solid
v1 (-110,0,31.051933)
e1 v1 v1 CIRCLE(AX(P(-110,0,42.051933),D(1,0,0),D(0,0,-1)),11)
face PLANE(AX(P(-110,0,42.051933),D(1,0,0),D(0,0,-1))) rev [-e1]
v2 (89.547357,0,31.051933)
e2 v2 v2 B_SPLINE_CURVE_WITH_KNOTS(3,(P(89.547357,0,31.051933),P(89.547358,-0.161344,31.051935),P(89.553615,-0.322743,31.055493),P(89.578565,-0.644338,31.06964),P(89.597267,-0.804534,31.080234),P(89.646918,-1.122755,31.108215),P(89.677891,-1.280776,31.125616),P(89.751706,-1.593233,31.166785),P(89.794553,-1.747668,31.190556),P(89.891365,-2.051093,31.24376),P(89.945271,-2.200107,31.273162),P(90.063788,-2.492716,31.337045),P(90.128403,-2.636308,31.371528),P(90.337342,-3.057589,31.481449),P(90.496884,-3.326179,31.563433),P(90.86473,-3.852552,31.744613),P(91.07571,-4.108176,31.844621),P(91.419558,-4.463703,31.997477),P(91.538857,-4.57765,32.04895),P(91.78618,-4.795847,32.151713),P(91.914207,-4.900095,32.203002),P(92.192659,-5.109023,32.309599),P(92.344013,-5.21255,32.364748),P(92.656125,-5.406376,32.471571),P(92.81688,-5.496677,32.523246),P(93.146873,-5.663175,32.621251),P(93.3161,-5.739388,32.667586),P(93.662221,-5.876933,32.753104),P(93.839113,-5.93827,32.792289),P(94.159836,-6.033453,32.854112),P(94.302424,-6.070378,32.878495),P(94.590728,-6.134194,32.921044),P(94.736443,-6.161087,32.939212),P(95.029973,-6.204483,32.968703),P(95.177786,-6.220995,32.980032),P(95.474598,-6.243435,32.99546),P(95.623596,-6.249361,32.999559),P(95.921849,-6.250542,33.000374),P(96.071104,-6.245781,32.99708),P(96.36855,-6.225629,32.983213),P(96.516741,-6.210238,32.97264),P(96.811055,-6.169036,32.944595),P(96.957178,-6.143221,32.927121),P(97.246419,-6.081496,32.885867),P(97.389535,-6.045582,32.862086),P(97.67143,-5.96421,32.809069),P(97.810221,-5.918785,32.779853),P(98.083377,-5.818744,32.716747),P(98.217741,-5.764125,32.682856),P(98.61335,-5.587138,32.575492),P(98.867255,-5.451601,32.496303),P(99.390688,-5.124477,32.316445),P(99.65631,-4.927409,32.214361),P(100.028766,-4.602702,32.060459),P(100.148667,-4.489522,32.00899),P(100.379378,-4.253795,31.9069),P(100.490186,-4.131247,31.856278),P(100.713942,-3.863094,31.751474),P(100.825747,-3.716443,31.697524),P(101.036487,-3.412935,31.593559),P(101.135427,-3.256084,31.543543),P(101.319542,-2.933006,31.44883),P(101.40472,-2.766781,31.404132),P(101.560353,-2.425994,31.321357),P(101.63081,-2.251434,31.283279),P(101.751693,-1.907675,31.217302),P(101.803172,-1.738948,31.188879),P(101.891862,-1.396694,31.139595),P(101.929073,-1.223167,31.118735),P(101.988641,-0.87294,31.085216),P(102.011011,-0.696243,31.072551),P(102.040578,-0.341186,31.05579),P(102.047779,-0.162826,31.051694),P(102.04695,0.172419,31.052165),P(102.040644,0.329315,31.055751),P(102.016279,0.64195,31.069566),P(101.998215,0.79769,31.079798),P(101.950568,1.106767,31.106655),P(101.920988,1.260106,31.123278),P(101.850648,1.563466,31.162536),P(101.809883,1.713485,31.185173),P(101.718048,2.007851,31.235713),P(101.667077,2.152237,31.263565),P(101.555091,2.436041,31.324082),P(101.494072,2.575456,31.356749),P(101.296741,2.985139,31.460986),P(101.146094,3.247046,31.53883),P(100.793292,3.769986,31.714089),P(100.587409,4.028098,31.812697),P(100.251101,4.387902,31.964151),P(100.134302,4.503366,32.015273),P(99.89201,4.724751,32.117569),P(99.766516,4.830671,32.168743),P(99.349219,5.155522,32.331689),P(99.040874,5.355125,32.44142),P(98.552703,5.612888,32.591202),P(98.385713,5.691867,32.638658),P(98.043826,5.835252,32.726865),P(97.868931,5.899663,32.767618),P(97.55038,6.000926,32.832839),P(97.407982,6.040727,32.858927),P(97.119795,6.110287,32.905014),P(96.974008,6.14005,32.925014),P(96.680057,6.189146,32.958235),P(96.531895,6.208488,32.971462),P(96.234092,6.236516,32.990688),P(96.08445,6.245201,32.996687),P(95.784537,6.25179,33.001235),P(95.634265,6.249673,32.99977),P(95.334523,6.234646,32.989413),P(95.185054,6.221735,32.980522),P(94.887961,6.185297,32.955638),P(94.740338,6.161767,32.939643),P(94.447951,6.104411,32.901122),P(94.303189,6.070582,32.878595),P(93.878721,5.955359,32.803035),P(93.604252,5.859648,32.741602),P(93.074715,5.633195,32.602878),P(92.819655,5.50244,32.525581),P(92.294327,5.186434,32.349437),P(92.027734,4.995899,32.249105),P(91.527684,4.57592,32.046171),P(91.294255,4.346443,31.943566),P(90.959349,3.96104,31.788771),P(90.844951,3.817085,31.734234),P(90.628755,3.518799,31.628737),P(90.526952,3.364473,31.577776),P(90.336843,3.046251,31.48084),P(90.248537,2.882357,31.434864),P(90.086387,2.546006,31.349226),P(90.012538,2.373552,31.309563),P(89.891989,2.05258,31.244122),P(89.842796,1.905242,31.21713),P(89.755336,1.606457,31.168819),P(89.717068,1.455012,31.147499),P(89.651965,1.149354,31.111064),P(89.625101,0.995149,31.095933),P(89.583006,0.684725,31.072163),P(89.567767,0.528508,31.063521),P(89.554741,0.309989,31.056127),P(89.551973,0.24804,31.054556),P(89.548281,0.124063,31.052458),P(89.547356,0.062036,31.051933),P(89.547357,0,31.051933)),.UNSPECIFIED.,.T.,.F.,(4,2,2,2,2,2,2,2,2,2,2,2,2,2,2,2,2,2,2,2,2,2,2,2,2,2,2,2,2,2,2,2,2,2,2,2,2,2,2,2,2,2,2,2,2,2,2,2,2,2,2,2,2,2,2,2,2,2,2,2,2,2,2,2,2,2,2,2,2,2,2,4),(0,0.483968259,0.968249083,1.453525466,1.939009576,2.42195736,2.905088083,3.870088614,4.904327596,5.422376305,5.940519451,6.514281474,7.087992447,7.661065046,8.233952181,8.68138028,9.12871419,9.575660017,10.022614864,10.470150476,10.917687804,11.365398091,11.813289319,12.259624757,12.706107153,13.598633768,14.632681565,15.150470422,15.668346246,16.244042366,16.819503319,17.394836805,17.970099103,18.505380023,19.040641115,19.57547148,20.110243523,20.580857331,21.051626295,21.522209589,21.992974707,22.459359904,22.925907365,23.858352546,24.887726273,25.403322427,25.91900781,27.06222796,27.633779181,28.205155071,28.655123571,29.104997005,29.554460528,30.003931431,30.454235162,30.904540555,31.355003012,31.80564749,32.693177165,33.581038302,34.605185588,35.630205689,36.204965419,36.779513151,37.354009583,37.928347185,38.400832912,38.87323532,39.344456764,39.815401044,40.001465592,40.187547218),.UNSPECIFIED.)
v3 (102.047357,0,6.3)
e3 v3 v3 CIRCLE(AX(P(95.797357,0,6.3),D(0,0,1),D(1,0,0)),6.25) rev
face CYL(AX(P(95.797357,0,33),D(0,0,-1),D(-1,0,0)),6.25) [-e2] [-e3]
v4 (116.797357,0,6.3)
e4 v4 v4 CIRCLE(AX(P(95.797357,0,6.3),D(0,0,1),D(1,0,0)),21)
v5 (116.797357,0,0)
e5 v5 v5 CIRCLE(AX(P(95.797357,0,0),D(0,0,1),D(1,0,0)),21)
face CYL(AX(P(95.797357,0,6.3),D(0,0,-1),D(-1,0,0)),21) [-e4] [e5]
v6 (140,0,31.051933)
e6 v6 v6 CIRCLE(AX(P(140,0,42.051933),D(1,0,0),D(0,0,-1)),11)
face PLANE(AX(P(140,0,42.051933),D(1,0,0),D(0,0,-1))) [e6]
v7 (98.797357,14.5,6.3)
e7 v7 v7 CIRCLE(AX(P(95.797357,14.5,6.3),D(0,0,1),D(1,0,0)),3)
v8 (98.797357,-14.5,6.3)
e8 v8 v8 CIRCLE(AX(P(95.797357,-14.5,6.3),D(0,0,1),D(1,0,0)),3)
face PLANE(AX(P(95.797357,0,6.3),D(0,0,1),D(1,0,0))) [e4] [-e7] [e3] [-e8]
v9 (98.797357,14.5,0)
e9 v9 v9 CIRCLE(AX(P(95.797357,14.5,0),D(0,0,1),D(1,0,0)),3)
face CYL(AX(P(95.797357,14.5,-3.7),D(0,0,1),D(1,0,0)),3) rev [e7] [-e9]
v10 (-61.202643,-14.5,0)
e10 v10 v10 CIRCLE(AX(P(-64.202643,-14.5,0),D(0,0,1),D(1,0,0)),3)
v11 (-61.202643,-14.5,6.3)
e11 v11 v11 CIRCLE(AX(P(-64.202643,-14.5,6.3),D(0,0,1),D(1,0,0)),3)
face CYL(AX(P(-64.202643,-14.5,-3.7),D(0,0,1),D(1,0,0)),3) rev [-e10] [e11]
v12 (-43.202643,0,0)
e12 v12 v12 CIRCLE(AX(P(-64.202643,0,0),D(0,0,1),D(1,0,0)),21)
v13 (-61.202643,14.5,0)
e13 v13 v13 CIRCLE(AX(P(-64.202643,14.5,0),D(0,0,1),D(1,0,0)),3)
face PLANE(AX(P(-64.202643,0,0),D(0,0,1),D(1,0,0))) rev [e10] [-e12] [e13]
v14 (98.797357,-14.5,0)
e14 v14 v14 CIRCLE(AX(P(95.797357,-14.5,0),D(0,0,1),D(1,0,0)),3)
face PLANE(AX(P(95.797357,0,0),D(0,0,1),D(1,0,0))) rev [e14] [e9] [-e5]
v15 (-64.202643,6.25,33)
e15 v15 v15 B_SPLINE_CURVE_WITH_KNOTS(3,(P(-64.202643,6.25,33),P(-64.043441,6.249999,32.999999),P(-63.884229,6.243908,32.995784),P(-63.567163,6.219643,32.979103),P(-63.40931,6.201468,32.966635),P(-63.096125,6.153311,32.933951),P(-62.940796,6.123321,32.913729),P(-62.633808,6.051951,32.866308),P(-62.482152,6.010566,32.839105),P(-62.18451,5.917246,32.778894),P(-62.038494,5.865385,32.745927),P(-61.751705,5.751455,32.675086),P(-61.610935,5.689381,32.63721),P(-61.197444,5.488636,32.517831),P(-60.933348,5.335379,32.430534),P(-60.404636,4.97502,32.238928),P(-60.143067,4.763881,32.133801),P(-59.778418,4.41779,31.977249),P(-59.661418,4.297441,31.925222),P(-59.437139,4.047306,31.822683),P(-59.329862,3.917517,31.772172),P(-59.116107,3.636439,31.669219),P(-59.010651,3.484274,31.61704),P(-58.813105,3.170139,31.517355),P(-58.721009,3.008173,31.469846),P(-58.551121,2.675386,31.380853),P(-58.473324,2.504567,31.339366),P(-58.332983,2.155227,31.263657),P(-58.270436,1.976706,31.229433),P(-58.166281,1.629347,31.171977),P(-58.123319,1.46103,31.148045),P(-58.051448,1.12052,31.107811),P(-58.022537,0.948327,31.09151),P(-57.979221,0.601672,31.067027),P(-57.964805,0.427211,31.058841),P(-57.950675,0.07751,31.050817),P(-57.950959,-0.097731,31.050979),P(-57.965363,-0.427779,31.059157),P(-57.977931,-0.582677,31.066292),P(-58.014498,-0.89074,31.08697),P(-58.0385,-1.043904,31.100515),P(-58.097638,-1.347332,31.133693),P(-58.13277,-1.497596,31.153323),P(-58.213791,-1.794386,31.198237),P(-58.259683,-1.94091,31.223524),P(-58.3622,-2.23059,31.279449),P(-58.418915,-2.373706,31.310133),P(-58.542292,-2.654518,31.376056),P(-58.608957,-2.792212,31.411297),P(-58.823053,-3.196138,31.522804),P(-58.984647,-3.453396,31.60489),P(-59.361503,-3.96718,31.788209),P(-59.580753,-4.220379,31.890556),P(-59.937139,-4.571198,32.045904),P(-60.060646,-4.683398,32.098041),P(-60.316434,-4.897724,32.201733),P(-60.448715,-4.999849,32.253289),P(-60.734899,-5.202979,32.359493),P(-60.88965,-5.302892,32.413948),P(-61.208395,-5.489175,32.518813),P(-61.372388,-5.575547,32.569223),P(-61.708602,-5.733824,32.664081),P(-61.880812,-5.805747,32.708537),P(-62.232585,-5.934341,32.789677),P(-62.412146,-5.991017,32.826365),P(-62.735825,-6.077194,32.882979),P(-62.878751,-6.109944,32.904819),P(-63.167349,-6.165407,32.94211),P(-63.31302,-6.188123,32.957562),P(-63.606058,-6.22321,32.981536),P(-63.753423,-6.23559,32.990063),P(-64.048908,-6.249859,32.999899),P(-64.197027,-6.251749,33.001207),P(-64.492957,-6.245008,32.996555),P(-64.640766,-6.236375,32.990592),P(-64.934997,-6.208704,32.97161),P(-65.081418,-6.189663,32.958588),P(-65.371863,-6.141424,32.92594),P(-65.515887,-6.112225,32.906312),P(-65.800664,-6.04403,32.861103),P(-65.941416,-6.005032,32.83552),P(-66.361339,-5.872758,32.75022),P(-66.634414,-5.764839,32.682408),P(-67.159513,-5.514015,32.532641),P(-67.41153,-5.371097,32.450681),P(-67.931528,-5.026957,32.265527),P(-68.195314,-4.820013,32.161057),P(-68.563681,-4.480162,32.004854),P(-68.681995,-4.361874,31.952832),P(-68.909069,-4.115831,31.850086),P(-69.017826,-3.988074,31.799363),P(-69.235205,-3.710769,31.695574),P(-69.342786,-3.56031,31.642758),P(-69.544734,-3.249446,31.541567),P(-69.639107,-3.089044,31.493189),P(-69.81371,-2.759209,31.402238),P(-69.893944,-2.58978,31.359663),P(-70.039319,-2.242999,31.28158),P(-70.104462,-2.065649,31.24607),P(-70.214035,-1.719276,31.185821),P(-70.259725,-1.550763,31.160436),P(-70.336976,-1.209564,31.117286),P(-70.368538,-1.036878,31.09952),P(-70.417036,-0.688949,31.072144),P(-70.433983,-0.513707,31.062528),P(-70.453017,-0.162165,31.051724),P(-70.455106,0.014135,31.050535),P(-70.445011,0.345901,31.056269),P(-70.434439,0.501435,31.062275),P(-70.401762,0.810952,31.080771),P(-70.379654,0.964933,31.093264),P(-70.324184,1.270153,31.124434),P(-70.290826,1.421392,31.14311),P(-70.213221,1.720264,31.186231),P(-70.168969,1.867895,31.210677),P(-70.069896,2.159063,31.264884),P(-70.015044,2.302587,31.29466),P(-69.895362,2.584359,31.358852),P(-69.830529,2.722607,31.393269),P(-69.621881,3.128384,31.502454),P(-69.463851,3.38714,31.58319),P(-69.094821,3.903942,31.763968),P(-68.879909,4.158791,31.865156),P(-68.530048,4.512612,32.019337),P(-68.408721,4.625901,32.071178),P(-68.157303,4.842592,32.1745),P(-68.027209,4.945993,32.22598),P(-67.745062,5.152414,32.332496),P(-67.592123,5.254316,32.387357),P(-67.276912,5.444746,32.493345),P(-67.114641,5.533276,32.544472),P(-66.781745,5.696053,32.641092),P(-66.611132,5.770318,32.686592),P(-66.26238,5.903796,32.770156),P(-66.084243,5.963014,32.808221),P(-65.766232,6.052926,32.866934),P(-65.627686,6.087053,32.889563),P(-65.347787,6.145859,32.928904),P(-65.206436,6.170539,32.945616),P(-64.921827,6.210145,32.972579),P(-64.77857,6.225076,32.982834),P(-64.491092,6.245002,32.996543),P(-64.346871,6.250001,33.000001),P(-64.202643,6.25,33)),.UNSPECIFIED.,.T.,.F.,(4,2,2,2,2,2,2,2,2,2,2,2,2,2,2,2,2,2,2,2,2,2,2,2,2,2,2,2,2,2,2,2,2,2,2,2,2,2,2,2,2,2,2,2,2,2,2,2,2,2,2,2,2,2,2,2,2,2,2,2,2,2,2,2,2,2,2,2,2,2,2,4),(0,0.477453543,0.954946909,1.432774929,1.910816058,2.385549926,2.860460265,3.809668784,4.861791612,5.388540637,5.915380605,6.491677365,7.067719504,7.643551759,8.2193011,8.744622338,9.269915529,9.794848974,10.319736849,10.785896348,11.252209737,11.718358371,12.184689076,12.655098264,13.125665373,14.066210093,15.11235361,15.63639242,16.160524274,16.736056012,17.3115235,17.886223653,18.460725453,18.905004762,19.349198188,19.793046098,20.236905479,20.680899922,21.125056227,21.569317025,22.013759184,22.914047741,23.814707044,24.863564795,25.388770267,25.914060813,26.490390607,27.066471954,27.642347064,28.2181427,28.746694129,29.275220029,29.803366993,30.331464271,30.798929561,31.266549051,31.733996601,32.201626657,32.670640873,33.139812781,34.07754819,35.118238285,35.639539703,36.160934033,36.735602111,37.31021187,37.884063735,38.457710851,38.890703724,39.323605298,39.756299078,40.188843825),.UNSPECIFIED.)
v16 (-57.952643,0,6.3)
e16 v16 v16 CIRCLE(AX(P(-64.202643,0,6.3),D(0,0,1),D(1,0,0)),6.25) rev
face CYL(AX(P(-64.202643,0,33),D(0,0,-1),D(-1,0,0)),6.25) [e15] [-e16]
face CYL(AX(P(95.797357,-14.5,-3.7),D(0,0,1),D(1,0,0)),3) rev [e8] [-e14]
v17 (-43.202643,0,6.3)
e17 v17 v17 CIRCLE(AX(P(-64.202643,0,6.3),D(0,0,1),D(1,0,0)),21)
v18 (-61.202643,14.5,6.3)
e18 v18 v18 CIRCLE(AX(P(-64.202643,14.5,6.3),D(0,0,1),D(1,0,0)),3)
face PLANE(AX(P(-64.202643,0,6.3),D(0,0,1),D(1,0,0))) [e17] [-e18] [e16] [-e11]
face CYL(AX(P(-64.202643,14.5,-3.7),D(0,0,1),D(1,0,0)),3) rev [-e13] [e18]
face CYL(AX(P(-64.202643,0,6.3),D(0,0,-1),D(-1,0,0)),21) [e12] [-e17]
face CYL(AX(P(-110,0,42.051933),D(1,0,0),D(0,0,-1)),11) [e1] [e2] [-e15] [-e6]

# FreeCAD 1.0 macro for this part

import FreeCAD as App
import Part
import Sketcher

doc = App.newDocument("Part")
body = doc.addObject("PartDesign::Body", "Body")

sketch1 = doc.addObject("Sketcher::SketchObject", "Sketch")
body.addObject(sketch1)
sketch1.AttachmentSupport = (doc.XY_Plane, [""])
sketch1.MapMode = "FlatFace"
sketch1.addGeometry(Part.Circle(App.Vector(-64, 0, 0), App.Vector(0, 0, 1), 21), False)
sketch1.addConstraint([
    Sketcher.Constraint("PointOnObject", 0, 3, -1),
    Sketcher.Constraint("Diameter", 0, 42.0),
    Sketcher.Constraint("DistanceX", 0, 3, -1, 1, 64.202643),
])
pad1 = doc.addObject("PartDesign::Pad", "Pad")
body.addObject(pad1)
pad1.Profile = sketch1
pad1.Length = 6.3
body2 = doc.addObject("PartDesign::Body", "Body001")

sketch2 = doc.addObject("Sketcher::SketchObject", "Sketch001")
body2.addObject(sketch2)
sketch2.AttachmentSupport = (doc.getObject("XY_Plane001"), [""])
sketch2.MapMode = "FlatFace"
sketch2.addGeometry(Part.Circle(App.Vector(96, 0, 0), App.Vector(0, 0, 1), 21), False)
sketch2.addConstraint([
    Sketcher.Constraint("PointOnObject", 0, 3, -1),
    Sketcher.Constraint("Diameter", 0, 42.0),
    Sketcher.Constraint("DistanceX", -1, 1, 0, 3, 95.797357),
])
pad2 = doc.addObject("PartDesign::Pad", "Pad001")
body2.addObject(pad2)
pad2.Profile = sketch2
pad2.Length = 6.3
body.AllowCompound = True
doc.recompute()

boolean = doc.addObject("PartDesign::Boolean", "Boolean")
body.addObject(boolean)
boolean.Type = "Fuse"
boolean.addObjects([body2])

sketch3 = doc.addObject("Sketcher::SketchObject", "Sketch002")
body.addObject(sketch3)
sketch3.AttachmentSupport = (doc.XY_Plane, [""])
sketch3.MapMode = "FlatFace"
sketch3.addGeometry([
    Part.Circle(App.Vector(-64, 0, 0), App.Vector(0, 0, 1), 6),
    Part.Circle(App.Vector(96, 0, 0), App.Vector(0, 0, 1), 6),
], False)
sketch3.addConstraint([
    Sketcher.Constraint("Equal", 0, 1),
    Sketcher.Constraint("PointOnObject", 0, 3, -1),
    Sketcher.Constraint("PointOnObject", 1, 3, -1),
    Sketcher.Constraint("Diameter", 0, 12.5),
    Sketcher.Constraint("DistanceX", 0, 3, 1, 3, 160.0),
    Sketcher.Constraint("DistanceX", 0, 3, -1, 1, 64.202643),
])
pad3 = doc.addObject("PartDesign::Pad", "Pad002")
body.addObject(pad3)
pad3.Profile = sketch3
pad3.Length = 33

sketch4 = doc.addObject("Sketcher::SketchObject", "Sketch003")
body.addObject(sketch4)
sketch4.AttachmentSupport = (doc.YZ_Plane, [""])
sketch4.MapMode = "FlatFace"
sketch4.addGeometry(Part.Circle(App.Vector(0, 42, 0), App.Vector(0, 0, 1), 11), False)
sketch4.addConstraint([
    Sketcher.Constraint("PointOnObject", 0, 3, -2),
    Sketcher.Constraint("Diameter", 0, 22.0),
    Sketcher.Constraint("DistanceY", -1, 1, 0, 3, 42.051933),
])
pad4 = doc.addObject("PartDesign::Pad", "Pad003")
body.addObject(pad4)
pad4.Profile = sketch4
pad4.Type = "TwoLengths"
pad4.Length = 140
pad4.Length2 = 110

sketch5 = doc.addObject("Sketcher::SketchObject", "Sketch004")
body.addObject(sketch5)
sketch5.AttachmentSupport = (doc.XY_Plane, [""])
sketch5.MapMode = "FlatFace"
sketch5.AttachmentOffset = App.Placement(App.Vector(0, 0, 6.3), App.Rotation())
sketch5.addGeometry([
    Part.Circle(App.Vector(-64.2, 14.5, 0), App.Vector(0, 0, 1), 3),
    Part.Circle(App.Vector(-64.2, -14.5, 0), App.Vector(0, 0, 1), 3),
    Part.Circle(App.Vector(95.8, 14.5, 0), App.Vector(0, 0, 1), 3),
    Part.Circle(App.Vector(95.8, -14.5, 0), App.Vector(0, 0, 1), 3),
], False)
sketch5.addConstraint([
    Sketcher.Constraint("Equal", 0, 1),
    Sketcher.Constraint("Equal", 1, 2),
    Sketcher.Constraint("Equal", 2, 3),
    Sketcher.Constraint("Symmetric", 0, 3, 1, 3, -1),
    Sketcher.Constraint("Symmetric", 2, 3, 3, 3, -1),
    Sketcher.Constraint("Horizontal", 0, 3, 2, 3),
    Sketcher.Constraint("Diameter", 0, 6.0),
    Sketcher.Constraint("DistanceY", 1, 3, 0, 3, 29.0),
    Sketcher.Constraint("DistanceX", 0, 3, 2, 3, 160.0),
    Sketcher.Constraint("DistanceX", 0, 3, -1, 1, 64.202643),
])
pocket1 = doc.addObject("PartDesign::Pocket", "Pocket")
body.addObject(pocket1)
pocket1.Profile = sketch5
pocket1.Length = 10

doc.recompute()
